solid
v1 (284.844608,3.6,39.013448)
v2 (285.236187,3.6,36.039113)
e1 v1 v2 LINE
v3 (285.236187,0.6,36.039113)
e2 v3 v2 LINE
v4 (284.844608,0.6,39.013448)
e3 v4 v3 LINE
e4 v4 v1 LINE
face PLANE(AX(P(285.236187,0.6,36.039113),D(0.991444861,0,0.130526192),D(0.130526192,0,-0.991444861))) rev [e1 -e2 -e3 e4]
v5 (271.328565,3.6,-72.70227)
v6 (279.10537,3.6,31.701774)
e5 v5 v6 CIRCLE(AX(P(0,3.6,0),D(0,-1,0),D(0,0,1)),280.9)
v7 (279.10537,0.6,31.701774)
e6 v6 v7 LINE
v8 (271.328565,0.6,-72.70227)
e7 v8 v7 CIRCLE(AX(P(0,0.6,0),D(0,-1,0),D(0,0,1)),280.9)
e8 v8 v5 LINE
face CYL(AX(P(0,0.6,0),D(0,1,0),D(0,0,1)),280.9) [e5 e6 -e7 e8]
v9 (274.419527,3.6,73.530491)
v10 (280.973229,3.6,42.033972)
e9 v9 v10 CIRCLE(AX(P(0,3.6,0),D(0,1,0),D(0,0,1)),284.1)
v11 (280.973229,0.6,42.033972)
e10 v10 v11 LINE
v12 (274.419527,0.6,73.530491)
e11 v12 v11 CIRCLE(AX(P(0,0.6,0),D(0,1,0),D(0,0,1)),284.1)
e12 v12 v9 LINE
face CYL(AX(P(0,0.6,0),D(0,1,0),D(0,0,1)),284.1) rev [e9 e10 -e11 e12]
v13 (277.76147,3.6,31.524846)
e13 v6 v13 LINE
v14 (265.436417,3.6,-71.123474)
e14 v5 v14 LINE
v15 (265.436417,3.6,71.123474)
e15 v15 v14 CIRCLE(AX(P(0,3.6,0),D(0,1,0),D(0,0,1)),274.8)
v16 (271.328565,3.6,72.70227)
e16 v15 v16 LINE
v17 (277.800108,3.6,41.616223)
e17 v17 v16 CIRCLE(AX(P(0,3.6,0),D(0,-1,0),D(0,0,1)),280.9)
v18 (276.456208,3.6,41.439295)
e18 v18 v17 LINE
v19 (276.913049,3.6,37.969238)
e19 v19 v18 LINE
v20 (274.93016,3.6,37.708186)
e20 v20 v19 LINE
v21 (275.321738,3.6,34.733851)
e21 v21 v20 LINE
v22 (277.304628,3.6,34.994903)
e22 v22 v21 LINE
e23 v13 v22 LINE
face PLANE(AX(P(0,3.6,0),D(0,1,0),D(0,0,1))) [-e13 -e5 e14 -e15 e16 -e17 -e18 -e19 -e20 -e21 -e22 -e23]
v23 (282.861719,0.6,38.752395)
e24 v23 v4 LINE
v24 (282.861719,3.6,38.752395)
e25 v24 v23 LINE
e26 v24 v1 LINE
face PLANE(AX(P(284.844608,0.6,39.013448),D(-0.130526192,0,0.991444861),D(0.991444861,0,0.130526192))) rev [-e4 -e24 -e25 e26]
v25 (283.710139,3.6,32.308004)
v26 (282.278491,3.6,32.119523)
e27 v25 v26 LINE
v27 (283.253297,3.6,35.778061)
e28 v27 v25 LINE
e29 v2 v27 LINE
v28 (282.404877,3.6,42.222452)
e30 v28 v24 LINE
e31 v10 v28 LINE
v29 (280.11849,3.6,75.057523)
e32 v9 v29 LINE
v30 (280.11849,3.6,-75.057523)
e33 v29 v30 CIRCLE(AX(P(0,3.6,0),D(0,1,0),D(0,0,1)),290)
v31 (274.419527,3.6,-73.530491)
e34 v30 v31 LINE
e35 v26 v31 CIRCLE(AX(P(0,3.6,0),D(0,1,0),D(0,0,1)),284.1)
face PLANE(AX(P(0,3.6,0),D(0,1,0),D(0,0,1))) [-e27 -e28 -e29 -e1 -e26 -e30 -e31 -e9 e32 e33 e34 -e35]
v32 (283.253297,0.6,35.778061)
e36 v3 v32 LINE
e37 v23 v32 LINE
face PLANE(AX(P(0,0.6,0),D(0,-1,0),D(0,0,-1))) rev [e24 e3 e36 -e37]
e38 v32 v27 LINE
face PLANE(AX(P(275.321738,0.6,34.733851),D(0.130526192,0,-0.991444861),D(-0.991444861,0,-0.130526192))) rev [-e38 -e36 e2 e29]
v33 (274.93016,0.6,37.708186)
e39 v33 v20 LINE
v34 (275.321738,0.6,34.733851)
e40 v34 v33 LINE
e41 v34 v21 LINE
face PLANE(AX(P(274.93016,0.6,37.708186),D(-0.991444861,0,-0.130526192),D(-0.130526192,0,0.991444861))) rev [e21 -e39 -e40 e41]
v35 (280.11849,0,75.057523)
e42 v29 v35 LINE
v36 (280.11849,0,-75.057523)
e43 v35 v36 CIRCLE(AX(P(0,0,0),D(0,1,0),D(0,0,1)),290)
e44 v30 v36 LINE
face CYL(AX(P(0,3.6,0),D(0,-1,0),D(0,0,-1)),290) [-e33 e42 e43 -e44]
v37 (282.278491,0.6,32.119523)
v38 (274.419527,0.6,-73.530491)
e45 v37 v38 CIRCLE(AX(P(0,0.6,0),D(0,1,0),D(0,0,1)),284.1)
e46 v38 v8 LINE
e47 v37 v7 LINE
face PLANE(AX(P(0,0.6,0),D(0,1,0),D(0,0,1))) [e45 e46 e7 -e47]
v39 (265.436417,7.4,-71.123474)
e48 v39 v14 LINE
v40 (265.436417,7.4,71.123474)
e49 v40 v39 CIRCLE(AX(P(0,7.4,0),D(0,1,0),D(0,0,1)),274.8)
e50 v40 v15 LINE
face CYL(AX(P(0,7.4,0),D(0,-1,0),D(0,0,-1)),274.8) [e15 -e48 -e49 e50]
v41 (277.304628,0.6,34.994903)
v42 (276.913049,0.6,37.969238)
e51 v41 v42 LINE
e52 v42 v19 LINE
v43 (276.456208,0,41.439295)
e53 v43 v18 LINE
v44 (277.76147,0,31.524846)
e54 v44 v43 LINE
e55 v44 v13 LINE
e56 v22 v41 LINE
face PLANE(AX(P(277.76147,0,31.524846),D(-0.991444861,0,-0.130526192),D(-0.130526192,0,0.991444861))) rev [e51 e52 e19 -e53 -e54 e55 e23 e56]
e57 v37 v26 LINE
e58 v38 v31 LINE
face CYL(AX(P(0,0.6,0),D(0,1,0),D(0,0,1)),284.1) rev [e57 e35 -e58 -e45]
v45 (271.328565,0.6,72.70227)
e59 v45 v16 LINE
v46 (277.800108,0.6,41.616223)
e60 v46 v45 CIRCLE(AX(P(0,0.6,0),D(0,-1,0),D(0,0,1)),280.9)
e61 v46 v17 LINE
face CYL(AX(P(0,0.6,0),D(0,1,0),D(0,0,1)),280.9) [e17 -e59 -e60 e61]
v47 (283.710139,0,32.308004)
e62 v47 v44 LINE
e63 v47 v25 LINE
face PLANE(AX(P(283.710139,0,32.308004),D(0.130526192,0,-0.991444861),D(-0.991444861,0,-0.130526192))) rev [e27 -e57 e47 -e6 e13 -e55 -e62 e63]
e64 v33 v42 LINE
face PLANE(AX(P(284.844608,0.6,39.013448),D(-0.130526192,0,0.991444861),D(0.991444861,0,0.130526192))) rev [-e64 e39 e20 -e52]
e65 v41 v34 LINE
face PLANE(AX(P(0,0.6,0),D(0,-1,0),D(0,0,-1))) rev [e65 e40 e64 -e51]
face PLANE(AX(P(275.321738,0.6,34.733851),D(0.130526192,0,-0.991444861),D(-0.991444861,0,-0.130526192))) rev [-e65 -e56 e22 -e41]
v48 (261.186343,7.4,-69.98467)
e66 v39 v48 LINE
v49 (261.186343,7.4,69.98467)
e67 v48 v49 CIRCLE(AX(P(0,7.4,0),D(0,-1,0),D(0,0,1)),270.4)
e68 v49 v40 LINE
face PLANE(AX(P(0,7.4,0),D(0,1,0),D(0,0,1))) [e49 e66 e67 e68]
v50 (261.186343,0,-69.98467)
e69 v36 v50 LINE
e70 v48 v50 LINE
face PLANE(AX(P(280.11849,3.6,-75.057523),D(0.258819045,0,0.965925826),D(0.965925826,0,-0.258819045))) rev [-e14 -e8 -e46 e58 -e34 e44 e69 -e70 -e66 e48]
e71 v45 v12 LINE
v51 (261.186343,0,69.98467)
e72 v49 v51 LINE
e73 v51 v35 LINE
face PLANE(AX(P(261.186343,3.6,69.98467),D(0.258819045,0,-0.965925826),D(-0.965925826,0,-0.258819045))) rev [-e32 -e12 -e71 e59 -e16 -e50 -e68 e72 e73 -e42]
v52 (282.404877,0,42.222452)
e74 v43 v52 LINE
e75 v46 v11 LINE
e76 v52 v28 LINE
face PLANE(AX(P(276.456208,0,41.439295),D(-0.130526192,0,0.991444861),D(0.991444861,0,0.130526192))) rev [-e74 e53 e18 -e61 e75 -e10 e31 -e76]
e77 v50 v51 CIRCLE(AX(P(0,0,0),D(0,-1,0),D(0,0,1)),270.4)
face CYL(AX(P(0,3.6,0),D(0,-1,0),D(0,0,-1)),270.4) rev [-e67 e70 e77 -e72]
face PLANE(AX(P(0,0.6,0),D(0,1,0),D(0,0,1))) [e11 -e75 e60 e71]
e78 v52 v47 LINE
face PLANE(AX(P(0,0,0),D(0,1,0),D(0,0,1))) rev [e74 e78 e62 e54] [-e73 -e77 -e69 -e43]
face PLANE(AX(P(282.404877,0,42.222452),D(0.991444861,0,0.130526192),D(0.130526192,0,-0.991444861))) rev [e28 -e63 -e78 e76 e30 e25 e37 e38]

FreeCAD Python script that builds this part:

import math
import FreeCAD as App
import Part
import Sketcher
from FreeCAD import Vector
Q = App.Units.Quantity

doc = App.newDocument("Part")
body = doc.addObject("PartDesign::Body", "Body")

sketch1 = body.newObject("Sketcher::SketchObject", "Sketch")
sketch1.AttachmentSupport = (doc.getObject("XZ_Plane"), [""])
sketch1.MapMode = "FlatFace"
sketch1.addGeometry(Part.LineSegment(Vector(280, -75, 0), Vector(261, -70, 0)), False)
sketch1.addGeometry(Part.ArcOfCircle(Part.Circle(Vector(0, 0, 0), Vector(0, 0, 1), 270), math.radians(-15), math.radians(15)), False)
sketch1.addGeometry(Part.LineSegment(Vector(261, 70, 0), Vector(280, 75, 0)), False)
sketch1.addGeometry(Part.ArcOfCircle(Part.Circle(Vector(0, 0, 0), Vector(0, 0, 1), 290), math.radians(-15), math.radians(15)), False)
sketch1.addConstraint(Sketcher.Constraint("Coincident", 0, 2, 1, 1))
sketch1.addConstraint(Sketcher.Constraint("Coincident", 1, 2, 2, 1))
sketch1.addConstraint(Sketcher.Constraint("Coincident", 2, 2, 3, 2))
sketch1.addConstraint(Sketcher.Constraint("Coincident", 3, 1, 0, 1))
sketch1.addConstraint(Sketcher.Constraint("Coincident", 1, 3, -1, 1))
sketch1.addConstraint(Sketcher.Constraint("Coincident", 3, 3, -1, 1))
sketch1.addConstraint(Sketcher.Constraint("Vertical", 0, 2, 1, 2))
sketch1.addConstraint(Sketcher.Constraint("Vertical", 2, 2, 3, 1))
sketch1.addConstraint(Sketcher.Constraint("Radius", 3, 290.0))
sketch1.addConstraint(Sketcher.Constraint("Radius", 1, 270.4))
sketch1.addConstraint(Sketcher.Constraint("Angle", 0, Q("165 deg")))
sketch1.addConstraint(Sketcher.Constraint("DistanceY", 0, 2, -1, 1, 69.98467))
pad1 = body.newObject("PartDesign::Pad", "Pad")
pad1.Profile = sketch1
pad1.Length = 3.6
pad1.Reversed = True

sketch2 = body.newObject("Sketcher::SketchObject", "Sketch001")
sketch2.AttachmentSupport = (doc.getObject("XZ_Plane"), [""])
sketch2.MapMode = "FlatFace"
sketch2.AttachmentOffset = App.Placement(Vector(0, 0, -3.6), App.Rotation())
sketch2.addGeometry(Part.LineSegment(Vector(274.4, -73.5, 0), Vector(271.3, -72.7, 0)), False)
sketch2.addGeometry(Part.ArcOfCircle(Part.Circle(Vector(0, 0, 0), Vector(0, 0, 1), 280.9), math.radians(-15), math.radians(15)), False)
sketch2.addGeometry(Part.LineSegment(Vector(271.3, 72.7, 0), Vector(274.4, 73.5, 0)), False)
sketch2.addGeometry(Part.ArcOfCircle(Part.Circle(Vector(0, 0, 0), Vector(0, 0, 1), 284.1), math.radians(-15), math.radians(15)), False)
sketch2.addConstraint(Sketcher.Constraint("Coincident", 0, 2, 1, 1))
sketch2.addConstraint(Sketcher.Constraint("Coincident", 1, 2, 2, 1))
sketch2.addConstraint(Sketcher.Constraint("Coincident", 2, 2, 3, 2))
sketch2.addConstraint(Sketcher.Constraint("Coincident", 3, 1, 0, 1))
sketch2.addConstraint(Sketcher.Constraint("Coincident", 1, 3, -1, 1))
sketch2.addConstraint(Sketcher.Constraint("Coincident", 3, 3, -1, 1))
sketch2.addConstraint(Sketcher.Constraint("Vertical", 0, 2, 1, 2))
sketch2.addConstraint(Sketcher.Constraint("Vertical", 2, 2, 3, 1))
sketch2.addConstraint(Sketcher.Constraint("Radius", 1, 280.9))
sketch2.addConstraint(Sketcher.Constraint("Radius", 3, 284.1))
sketch2.addConstraint(Sketcher.Constraint("Angle", 0, Q("165 deg")))
sketch2.addConstraint(Sketcher.Constraint("DistanceY", 0, 2, -1, 1, 72.70227))
pocket1 = body.newObject("PartDesign::Pocket", "Pocket")
pocket1.Profile = sketch2
pocket1.Length = 3
pocket1.Reversed = True

sketch3 = body.newObject("Sketcher::SketchObject", "Sketch002")
sketch3.AttachmentSupport = (doc.getObject("XZ_Plane"), [""])
sketch3.MapMode = "FlatFace"
sketch3.AttachmentOffset = App.Placement(Vector(0, 0, -3.6), App.Rotation())
sketch3.addGeometry(Part.LineSegment(Vector(276, 41, 0), Vector(282, 42, 0)), False)
sketch3.addGeometry(Part.LineSegment(Vector(282, 42, 0), Vector(284, 32, 0)), False)
sketch3.addGeometry(Part.LineSegment(Vector(284, 32, 0), Vector(278, 32, 0)), False)
sketch3.addGeometry(Part.LineSegment(Vector(278, 32, 0), Vector(276, 41, 0)), False)
sketch3.addConstraint(Sketcher.Constraint("Coincident", 0, 2, 1, 1))
sketch3.addConstraint(Sketcher.Constraint("Coincident", 1, 2, 2, 1))
sketch3.addConstraint(Sketcher.Constraint("Coincident", 2, 2, 3, 1))
sketch3.addConstraint(Sketcher.Constraint("Coincident", 3, 2, 0, 1))
sketch3.addConstraint(Sketcher.Constraint("Perpendicular", 0, 1))
sketch3.addConstraint(Sketcher.Constraint("Perpendicular", 1, 2))
sketch3.addConstraint(Sketcher.Constraint("Perpendicular", 2, 3))
sketch3.addConstraint(Sketcher.Constraint("Distance", 0, 6.0))
sketch3.addConstraint(Sketcher.Constraint("Distance", 1, 10.0))
sketch3.addConstraint(Sketcher.Constraint("Angle", 0, Q("7.5 deg")))
sketch3.addConstraint(Sketcher.Constraint("DistanceX", -1, 1, 1, 2, 283.710139))
sketch3.addConstraint(Sketcher.Constraint("DistanceY", -1, 1, 0, 2, 42.222452))
pocket2 = body.newObject("PartDesign::Pocket", "Pocket001")
pocket2.Profile = sketch3
pocket2.Type = "ThroughAll"
pocket2.Reversed = True

sketch4 = body.newObject("Sketcher::SketchObject", "Sketch003")
sketch4.AttachmentSupport = (doc.getObject("XZ_Plane"), [""])
sketch4.MapMode = "FlatFace"
sketch4.AttachmentOffset = App.Placement(Vector(0, 0, -3.6), App.Rotation())
sketch4.addGeometry(Part.LineSegment(Vector(285.2, 36, 0), Vector(275.3, 34.7, 0)), False)
sketch4.addGeometry(Part.LineSegment(Vector(275.3, 34.7, 0), Vector(274.9, 37.7, 0)), False)
sketch4.addGeometry(Part.LineSegment(Vector(274.9, 37.7, 0), Vector(284.8, 39, 0)), False)
sketch4.addGeometry(Part.LineSegment(Vector(284.8, 39, 0), Vector(285.2, 36, 0)), False)
sketch4.addConstraint(Sketcher.Constraint("Coincident", 0, 2, 1, 1))
sketch4.addConstraint(Sketcher.Constraint("Coincident", 1, 2, 2, 1))
sketch4.addConstraint(Sketcher.Constraint("Coincident", 2, 2, 3, 1))
sketch4.addConstraint(Sketcher.Constraint("Coincident", 3, 2, 0, 1))
sketch4.addConstraint(Sketcher.Constraint("Perpendicular", 0, 1))
sketch4.addConstraint(Sketcher.Constraint("Perpendicular", 1, 2))
sketch4.addConstraint(Sketcher.Constraint("Perpendicular", 2, 3))
sketch4.addConstraint(Sketcher.Constraint("Distance", 0, 10.0))
sketch4.addConstraint(Sketcher.Constraint("Distance", 1, 3.0))
sketch4.addConstraint(Sketcher.Constraint("Angle", 0, Q("-172.5 deg")))
sketch4.addConstraint(Sketcher.Constraint("DistanceX", -1, 1, 0, 2, 275.321738))
sketch4.addConstraint(Sketcher.Constraint("DistanceY", -1, 1, 0, 2, 34.733851))
pocket3 = body.newObject("PartDesign::Pocket", "Pocket002")
pocket3.Profile = sketch4
pocket3.Length = 3
pocket3.Reversed = True

sketch5 = body.newObject("Sketcher::SketchObject", "Sketch004")
sketch5.AttachmentSupport = (doc.getObject("XZ_Plane"), [""])
sketch5.MapMode = "FlatFace"
sketch5.AttachmentOffset = App.Placement(Vector(0, 0, -3.6), App.Rotation())
sketch5.addGeometry(Part.LineSegment(Vector(265.4, -71.1, 0), Vector(261.2, -70, 0)), False)
sketch5.addGeometry(Part.ArcOfCircle(Part.Circle(Vector(0, 0, 0), Vector(0, 0, 1), 270.4), math.radians(-15), math.radians(15)), False)
sketch5.addGeometry(Part.LineSegment(Vector(261.2, 70, 0), Vector(265.4, 71.1, 0)), False)
sketch5.addGeometry(Part.ArcOfCircle(Part.Circle(Vector(0, 0, 0), Vector(0, 0, 1), 274.8), math.radians(-15), math.radians(15)), False)
sketch5.addConstraint(Sketcher.Constraint("Coincident", 0, 2, 1, 1))
sketch5.addConstraint(Sketcher.Constraint("Coincident", 1, 2, 2, 1))
sketch5.addConstraint(Sketcher.Constraint("Coincident", 2, 2, 3, 2))
sketch5.addConstraint(Sketcher.Constraint("Coincident", 3, 1, 0, 1))
sketch5.addConstraint(Sketcher.Constraint("Coincident", 1, 3, -1, 1))
sketch5.addConstraint(Sketcher.Constraint("Coincident", 3, 3, -1, 1))
sketch5.addConstraint(Sketcher.Constraint("Vertical", 0, 2, 1, 2))
sketch5.addConstraint(Sketcher.Constraint("Vertical", 2, 2, 3, 1))
sketch5.addConstraint(Sketcher.Constraint("Radius", 1, 270.4))
sketch5.addConstraint(Sketcher.Constraint("Radius", 3, 274.8))
sketch5.addConstraint(Sketcher.Constraint("Angle", 0, Q("165 deg")))
sketch5.addConstraint(Sketcher.Constraint("DistanceY", 0, 2, -1, 1, 69.98467))
pad2 = body.newObject("PartDesign::Pad", "Pad001")
pad2.Profile = sketch5
pad2.Length = 3.8
pad2.Reversed = True

doc.recompute()
